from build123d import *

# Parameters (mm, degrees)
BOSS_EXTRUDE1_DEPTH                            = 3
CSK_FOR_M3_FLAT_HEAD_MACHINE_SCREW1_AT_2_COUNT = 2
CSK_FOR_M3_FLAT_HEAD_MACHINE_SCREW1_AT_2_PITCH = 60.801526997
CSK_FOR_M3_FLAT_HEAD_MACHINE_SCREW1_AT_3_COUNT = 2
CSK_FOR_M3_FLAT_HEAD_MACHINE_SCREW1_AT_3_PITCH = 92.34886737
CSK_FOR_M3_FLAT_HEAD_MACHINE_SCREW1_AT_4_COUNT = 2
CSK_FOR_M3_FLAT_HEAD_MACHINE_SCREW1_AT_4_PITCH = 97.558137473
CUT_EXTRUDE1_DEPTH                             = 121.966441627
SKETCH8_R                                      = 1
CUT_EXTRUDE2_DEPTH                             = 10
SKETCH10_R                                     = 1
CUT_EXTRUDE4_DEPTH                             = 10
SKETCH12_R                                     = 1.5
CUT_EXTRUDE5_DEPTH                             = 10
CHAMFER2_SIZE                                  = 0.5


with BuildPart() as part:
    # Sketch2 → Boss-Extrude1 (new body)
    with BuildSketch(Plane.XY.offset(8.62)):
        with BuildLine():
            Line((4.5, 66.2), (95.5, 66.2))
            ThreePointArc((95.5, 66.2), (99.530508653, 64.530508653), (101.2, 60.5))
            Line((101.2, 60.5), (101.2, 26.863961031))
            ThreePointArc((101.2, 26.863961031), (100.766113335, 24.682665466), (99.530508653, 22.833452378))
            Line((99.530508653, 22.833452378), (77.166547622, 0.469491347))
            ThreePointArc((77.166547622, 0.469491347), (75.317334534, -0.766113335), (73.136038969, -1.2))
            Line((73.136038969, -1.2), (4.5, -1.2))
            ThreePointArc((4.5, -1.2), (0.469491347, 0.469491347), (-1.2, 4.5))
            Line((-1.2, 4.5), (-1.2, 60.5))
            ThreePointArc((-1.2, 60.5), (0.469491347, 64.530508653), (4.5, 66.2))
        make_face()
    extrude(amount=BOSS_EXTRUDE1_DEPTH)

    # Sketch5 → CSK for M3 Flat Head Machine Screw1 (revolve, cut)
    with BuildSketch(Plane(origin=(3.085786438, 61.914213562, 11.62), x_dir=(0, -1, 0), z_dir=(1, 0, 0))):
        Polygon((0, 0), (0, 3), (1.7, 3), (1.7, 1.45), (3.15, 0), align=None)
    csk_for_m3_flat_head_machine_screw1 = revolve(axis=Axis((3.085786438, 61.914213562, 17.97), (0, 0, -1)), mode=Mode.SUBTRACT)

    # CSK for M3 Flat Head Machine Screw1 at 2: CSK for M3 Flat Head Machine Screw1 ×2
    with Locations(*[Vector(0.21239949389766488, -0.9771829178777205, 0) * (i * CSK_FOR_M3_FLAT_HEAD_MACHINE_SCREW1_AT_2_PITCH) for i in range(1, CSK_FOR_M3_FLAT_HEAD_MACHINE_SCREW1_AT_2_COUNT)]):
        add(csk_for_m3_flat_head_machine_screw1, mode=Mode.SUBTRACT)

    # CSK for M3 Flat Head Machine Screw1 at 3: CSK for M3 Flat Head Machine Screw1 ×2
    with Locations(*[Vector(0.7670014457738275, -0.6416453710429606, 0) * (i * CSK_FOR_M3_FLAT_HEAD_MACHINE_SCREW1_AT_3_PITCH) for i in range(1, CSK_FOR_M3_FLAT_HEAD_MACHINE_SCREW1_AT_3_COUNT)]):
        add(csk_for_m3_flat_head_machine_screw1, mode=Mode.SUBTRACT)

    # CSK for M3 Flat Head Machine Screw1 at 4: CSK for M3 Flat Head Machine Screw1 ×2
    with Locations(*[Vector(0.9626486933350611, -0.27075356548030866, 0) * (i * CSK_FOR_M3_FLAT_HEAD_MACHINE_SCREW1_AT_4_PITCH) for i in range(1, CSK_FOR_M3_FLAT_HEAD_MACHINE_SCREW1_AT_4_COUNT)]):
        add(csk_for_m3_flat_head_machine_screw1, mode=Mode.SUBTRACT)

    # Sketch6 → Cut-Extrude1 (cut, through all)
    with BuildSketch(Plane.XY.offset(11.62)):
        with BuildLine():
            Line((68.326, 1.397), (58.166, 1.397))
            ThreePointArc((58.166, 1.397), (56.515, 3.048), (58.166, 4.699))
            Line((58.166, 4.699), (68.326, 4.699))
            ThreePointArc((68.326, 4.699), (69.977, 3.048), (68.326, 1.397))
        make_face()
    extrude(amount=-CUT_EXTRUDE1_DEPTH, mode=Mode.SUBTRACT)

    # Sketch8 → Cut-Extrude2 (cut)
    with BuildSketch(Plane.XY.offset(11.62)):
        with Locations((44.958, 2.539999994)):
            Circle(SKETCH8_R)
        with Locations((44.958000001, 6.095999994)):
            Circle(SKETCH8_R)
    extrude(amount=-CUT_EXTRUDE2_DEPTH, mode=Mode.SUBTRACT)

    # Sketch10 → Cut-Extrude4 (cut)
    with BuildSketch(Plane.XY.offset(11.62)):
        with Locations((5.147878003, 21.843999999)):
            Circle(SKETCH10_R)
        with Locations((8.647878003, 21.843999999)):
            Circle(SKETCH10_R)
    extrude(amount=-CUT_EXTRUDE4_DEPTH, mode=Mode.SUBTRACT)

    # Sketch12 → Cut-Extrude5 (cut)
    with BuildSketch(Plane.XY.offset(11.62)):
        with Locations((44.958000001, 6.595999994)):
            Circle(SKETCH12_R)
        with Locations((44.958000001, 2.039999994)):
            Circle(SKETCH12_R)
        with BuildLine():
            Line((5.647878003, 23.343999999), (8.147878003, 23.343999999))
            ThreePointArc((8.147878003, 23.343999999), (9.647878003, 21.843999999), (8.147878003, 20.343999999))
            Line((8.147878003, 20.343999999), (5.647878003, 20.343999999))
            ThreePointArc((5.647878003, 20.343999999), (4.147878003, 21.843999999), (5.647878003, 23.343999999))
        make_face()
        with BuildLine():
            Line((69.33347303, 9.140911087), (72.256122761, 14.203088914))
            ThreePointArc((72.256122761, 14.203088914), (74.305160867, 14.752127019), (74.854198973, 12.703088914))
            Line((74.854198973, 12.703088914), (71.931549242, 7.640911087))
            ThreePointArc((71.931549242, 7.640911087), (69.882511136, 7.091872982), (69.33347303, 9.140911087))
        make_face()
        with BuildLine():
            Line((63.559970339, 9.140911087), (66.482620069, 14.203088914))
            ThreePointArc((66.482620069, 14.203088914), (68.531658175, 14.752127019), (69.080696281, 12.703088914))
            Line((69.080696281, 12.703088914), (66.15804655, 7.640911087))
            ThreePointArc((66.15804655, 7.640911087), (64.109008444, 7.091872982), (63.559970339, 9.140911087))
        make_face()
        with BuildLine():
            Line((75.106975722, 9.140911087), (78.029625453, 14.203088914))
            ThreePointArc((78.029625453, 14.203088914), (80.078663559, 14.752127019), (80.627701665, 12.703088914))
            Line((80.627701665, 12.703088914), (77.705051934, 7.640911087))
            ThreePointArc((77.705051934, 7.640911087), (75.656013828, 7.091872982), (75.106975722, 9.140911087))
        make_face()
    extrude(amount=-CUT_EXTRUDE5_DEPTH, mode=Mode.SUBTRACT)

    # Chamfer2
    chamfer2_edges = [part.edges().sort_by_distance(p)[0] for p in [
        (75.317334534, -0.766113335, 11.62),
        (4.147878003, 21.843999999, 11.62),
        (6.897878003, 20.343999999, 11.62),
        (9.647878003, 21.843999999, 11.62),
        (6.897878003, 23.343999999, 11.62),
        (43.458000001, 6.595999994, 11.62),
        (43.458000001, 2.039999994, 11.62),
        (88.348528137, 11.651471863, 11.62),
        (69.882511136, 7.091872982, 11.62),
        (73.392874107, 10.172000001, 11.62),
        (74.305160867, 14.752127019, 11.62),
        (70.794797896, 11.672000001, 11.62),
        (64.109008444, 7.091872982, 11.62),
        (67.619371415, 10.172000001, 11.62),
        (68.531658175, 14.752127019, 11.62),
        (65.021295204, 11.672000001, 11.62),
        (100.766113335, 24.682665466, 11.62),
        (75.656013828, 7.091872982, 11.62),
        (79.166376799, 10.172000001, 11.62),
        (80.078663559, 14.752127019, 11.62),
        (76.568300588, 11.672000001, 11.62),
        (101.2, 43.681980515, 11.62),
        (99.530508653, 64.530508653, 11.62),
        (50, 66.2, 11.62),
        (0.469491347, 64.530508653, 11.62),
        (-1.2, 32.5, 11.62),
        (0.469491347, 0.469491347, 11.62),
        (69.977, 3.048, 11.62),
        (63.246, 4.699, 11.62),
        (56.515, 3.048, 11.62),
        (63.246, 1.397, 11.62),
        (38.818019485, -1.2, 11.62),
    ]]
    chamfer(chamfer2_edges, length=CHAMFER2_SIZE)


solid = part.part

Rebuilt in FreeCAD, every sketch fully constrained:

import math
import FreeCAD as App
import Part
import Sketcher
Q = App.Units.Quantity


def edges_at(feature, points):
    """Names of the edges that pass closest to the given points."""
    edges = feature.Shape.Edges
    near = lambda p: min(range(len(edges)), key=lambda i: edges[i].distToShape(Part.Vertex(*p))[0])
    return sorted({f"Edge{near(p) + 1}" for p in points})


def add_polygon(sketch, points):
    """Adds a closed chain of lines whose ends are joined by coincident constraints."""
    first, n = sketch.GeometryCount, len(points)
    for a, b in zip(points, points[1:] + points[:1]):
        sketch.addGeometry(Part.LineSegment(App.Vector(*a, 0), App.Vector(*b, 0)), False)
    for i in range(n):
        sketch.addConstraint(Sketcher.Constraint("Coincident", first + i, 2, first + (i + 1) % n, 1))

doc = App.newDocument("Part")
body = doc.addObject("PartDesign::Body", "Body")

sketch1 = body.newObject("Sketcher::SketchObject", "Sketch")
sketch1.AttachmentSupport = (doc.getObject("XY_Plane"), [""])
sketch1.MapMode = "FlatFace"
sketch1.AttachmentOffset = App.Placement(App.Vector(0, 0, 8.62), App.Rotation())
sketch1.addGeometry(Part.LineSegment(App.Vector(95.5, 66.2, 0), App.Vector(4.5, 66.2, 0)), False)
sketch1.addGeometry(Part.ArcOfCircle(Part.Circle(App.Vector(4.5, 60.5, 0), App.Vector(0, 0, 1), 5.7), math.radians(90), math.radians(180)), False)
sketch1.addGeometry(Part.LineSegment(App.Vector(-1.2, 60.5, 0), App.Vector(-1.2, 4.5, 0)), False)
sketch1.addGeometry(Part.ArcOfCircle(Part.Circle(App.Vector(4.5, 4.5, 0), App.Vector(0, 0, 1), 5.7), math.radians(180), math.radians(270)), False)
sketch1.addGeometry(Part.LineSegment(App.Vector(4.5, -1.2, 0), App.Vector(73.1, -1.2, 0)), False)
sketch1.addGeometry(Part.ArcOfCircle(Part.Circle(App.Vector(73.1, 4.5, 0), App.Vector(0, 0, 1), 5.7), math.radians(-90), math.radians(-45)), False)
sketch1.addGeometry(Part.LineSegment(App.Vector(77.2, 0.5, 0), App.Vector(99.5, 22.8, 0)), False)
sketch1.addGeometry(Part.ArcOfCircle(Part.Circle(App.Vector(95.5, 26.9, 0), App.Vector(0, 0, 1), 5.7), math.radians(-45), math.radians(0)), False)
sketch1.addGeometry(Part.LineSegment(App.Vector(101.2, 26.9, 0), App.Vector(101.2, 60.5, 0)), False)
sketch1.addGeometry(Part.ArcOfCircle(Part.Circle(App.Vector(95.5, 60.5, 0), App.Vector(0, 0, 1), 5.7), math.radians(0), math.radians(90)), False)
sketch1.addConstraint(Sketcher.Constraint("Tangent", 0, 2, 1, 1))
sketch1.addConstraint(Sketcher.Constraint("Tangent", 1, 2, 2, 1))
sketch1.addConstraint(Sketcher.Constraint("Tangent", 2, 2, 3, 1))
sketch1.addConstraint(Sketcher.Constraint("Tangent", 3, 2, 4, 1))
sketch1.addConstraint(Sketcher.Constraint("Tangent", 4, 2, 5, 1))
sketch1.addConstraint(Sketcher.Constraint("Tangent", 5, 2, 6, 1))
sketch1.addConstraint(Sketcher.Constraint("Tangent", 6, 2, 7, 1))
sketch1.addConstraint(Sketcher.Constraint("Tangent", 7, 2, 8, 1))
sketch1.addConstraint(Sketcher.Constraint("Tangent", 8, 2, 9, 1))
sketch1.addConstraint(Sketcher.Constraint("Tangent", 9, 2, 0, 1))
sketch1.addConstraint(Sketcher.Constraint("Horizontal", 0))
sketch1.addConstraint(Sketcher.Constraint("Vertical", 2))
sketch1.addConstraint(Sketcher.Constraint("Horizontal", 4))
sketch1.addConstraint(Sketcher.Constraint("Vertical", 8))
sketch1.addConstraint(Sketcher.Constraint("Equal", 1, 3))
sketch1.addConstraint(Sketcher.Constraint("Equal", 3, 5))
sketch1.addConstraint(Sketcher.Constraint("Equal", 5, 7))
sketch1.addConstraint(Sketcher.Constraint("Equal", 7, 9))
sketch1.addConstraint(Sketcher.Constraint("Radius", 1, 5.7))
sketch1.addConstraint(Sketcher.Constraint("DistanceX", 0, 2, 0, 1, 91.0))
sketch1.addConstraint(Sketcher.Constraint("DistanceY", 2, 2, 2, 1, 56.0))
sketch1.addConstraint(Sketcher.Constraint("Angle", 6, Q("45 deg")))
sketch1.addConstraint(Sketcher.Constraint("DistanceX", -1, 1, 1, 3, 4.5))
sketch1.addConstraint(Sketcher.Constraint("DistanceY", -1, 1, 1, 3, 60.5))
sketch1.addConstraint(Sketcher.Constraint("DistanceX", 4, 1, 4, 2, 68.636039))
pad1 = body.newObject("PartDesign::Pad", "Pad")
pad1.Profile = sketch1
pad1.Length = 3

sketch2 = body.newObject("Sketcher::SketchObject", "Sketch001")
sketch2.AttachmentSupport = (doc.getObject("YZ_Plane"), [""])
sketch2.MapMode = "FlatFace"
sketch2.AttachmentOffset = App.Placement(App.Vector(0, 0, 3.085786), App.Rotation())
add_polygon(sketch2, [(61.9, 8.6), (61.9, 11.6), (58.8, 11.6), (60.2, 10.2), (60.2, 8.6)])
sketch2.addGeometry(Part.LineSegment(App.Vector(61.9, 11.6, 0), App.Vector(61.9, 8.6, 0)), True)
sketch2.addConstraint(Sketcher.Constraint("Vertical", 0))
sketch2.addConstraint(Sketcher.Constraint("Horizontal", 1))
sketch2.addConstraint(Sketcher.Constraint("Vertical", 3))
sketch2.addConstraint(Sketcher.Constraint("Horizontal", 4))
sketch2.addConstraint(Sketcher.Constraint("Vertical", 5))
sketch2.addConstraint(Sketcher.Constraint("Coincident", 5, 1, 0, 2))
sketch2.addConstraint(Sketcher.Constraint("Horizontal", 3, 2, 5, 2))
sketch2.addConstraint(Sketcher.Constraint("DistanceY", 0, 1, 0, 2, 3.0))
sketch2.addConstraint(Sketcher.Constraint("Angle", 2, Q("-45 deg")))
sketch2.addConstraint(Sketcher.Constraint("DistanceX", 4, 1, 4, 2, 1.7))
sketch2.addConstraint(Sketcher.Constraint("DistanceX", 1, 2, 1, 1, 3.15))
sketch2.addConstraint(Sketcher.Constraint("DistanceY", -1, 1, 0, 2, 11.62))
sketch2.addConstraint(Sketcher.Constraint("DistanceX", -1, 1, 0, 2, 61.914214))
groove = body.newObject("PartDesign::Groove", "Groove")
groove.Profile = sketch2
groove.ReferenceAxis = (sketch2, ["Axis0"])
groove.Angle = 360
doc.recompute()

datumline = body.newObject("PartDesign::Line", "DatumLine")
datumline.Placement = App.Placement(App.Vector(0, 0, 0), App.Rotation(App.Vector(0, 0, 1), App.Vector(0.212399494, -0.977182918, 0)))
linearpattern = body.newObject("PartDesign::LinearPattern", "LinearPattern")
linearpattern.Originals = [groove]
linearpattern.Direction = (datumline, [""])
linearpattern.Mode = "offset"
linearpattern.Offset = 60.801527
linearpattern.Occurrences = 2
body.Tip = linearpattern
doc.recompute()

datumline2 = body.newObject("PartDesign::Line", "DatumLine001")
datumline2.Placement = App.Placement(App.Vector(0, 0, 0), App.Rotation(App.Vector(0, 0, 1), App.Vector(0.767001446, -0.641645371, 0)))
linearpattern2 = body.newObject("PartDesign::LinearPattern", "LinearPattern001")
linearpattern2.Originals = [groove]
linearpattern2.Direction = (datumline2, [""])
linearpattern2.Mode = "offset"
linearpattern2.Offset = 92.348867
linearpattern2.Occurrences = 2
body.Tip = linearpattern2
doc.recompute()

datumline3 = body.newObject("PartDesign::Line", "DatumLine002")
datumline3.Placement = App.Placement(App.Vector(0, 0, 0), App.Rotation(App.Vector(0, 0, 1), App.Vector(0.962648693, -0.270753565, 0)))
linearpattern3 = body.newObject("PartDesign::LinearPattern", "LinearPattern002")
linearpattern3.Originals = [groove]
linearpattern3.Direction = (datumline3, [""])
linearpattern3.Mode = "offset"
linearpattern3.Offset = 97.558137
linearpattern3.Occurrences = 2
body.Tip = linearpattern3

sketch3 = body.newObject("Sketcher::SketchObject", "Sketch002")
sketch3.AttachmentSupport = (doc.getObject("XY_Plane"), [""])
sketch3.MapMode = "FlatFace"
sketch3.AttachmentOffset = App.Placement(App.Vector(0, 0, 11.62), App.Rotation())
sketch3.addGeometry(Part.LineSegment(App.Vector(58.2, 1.4, 0), App.Vector(68.3, 1.4, 0)), False)
sketch3.addGeometry(Part.ArcOfCircle(Part.Circle(App.Vector(68.3, 3, 0), App.Vector(0, 0, 1), 1.7), math.radians(-90), math.radians(90)), False)
sketch3.addGeometry(Part.LineSegment(App.Vector(68.3, 4.7, 0), App.Vector(58.2, 4.7, 0)), False)
sketch3.addGeometry(Part.ArcOfCircle(Part.Circle(App.Vector(58.2, 3, 0), App.Vector(0, 0, 1), 1.7), math.radians(90), math.radians(270)), False)
sketch3.addConstraint(Sketcher.Constraint("Tangent", 0, 2, 1, 1))
sketch3.addConstraint(Sketcher.Constraint("Tangent", 1, 2, 2, 1))
sketch3.addConstraint(Sketcher.Constraint("Tangent", 2, 2, 3, 1))
sketch3.addConstraint(Sketcher.Constraint("Tangent", 3, 2, 0, 1))
sketch3.addConstraint(Sketcher.Constraint("Horizontal", 0))
sketch3.addConstraint(Sketcher.Constraint("Horizontal", 2))
sketch3.addConstraint(Sketcher.Constraint("Radius", 1, 1.651))
sketch3.addConstraint(Sketcher.Constraint("DistanceX", 0, 1, 0, 2, 10.16))
sketch3.addConstraint(Sketcher.Constraint("DistanceX", -1, 1, 1, 3, 68.326))
sketch3.addConstraint(Sketcher.Constraint("DistanceY", -1, 1, 1, 3, 3.048))
pocket1 = body.newObject("PartDesign::Pocket", "Pocket")
pocket1.Profile = sketch3
pocket1.Type = "ThroughAll"

sketch4 = body.newObject("Sketcher::SketchObject", "Sketch003")
sketch4.AttachmentSupport = (doc.getObject("XY_Plane"), [""])
sketch4.MapMode = "FlatFace"
sketch4.AttachmentOffset = App.Placement(App.Vector(0, 0, 11.62), App.Rotation())
sketch4.addGeometry(Part.Circle(App.Vector(45, 2.5, 0), App.Vector(0, 0, 1), 1), False)
sketch4.addGeometry(Part.Circle(App.Vector(45, 6.1, 0), App.Vector(0, 0, 1), 1), False)
sketch4.addConstraint(Sketcher.Constraint("Equal", 0, 1))
sketch4.addConstraint(Sketcher.Constraint("Vertical", 0, 3, 1, 3))
sketch4.addConstraint(Sketcher.Constraint("Diameter", 0, 2.0))
sketch4.addConstraint(Sketcher.Constraint("DistanceY", -1, 1, 0, 3, 2.54))
sketch4.addConstraint(Sketcher.Constraint("DistanceX", -1, 1, 0, 3, 44.958))
sketch4.addConstraint(Sketcher.Constraint("DistanceY", -1, 1, 1, 3, 6.096))
pocket2 = body.newObject("PartDesign::Pocket", "Pocket001")
pocket2.Profile = sketch4
pocket2.Length = 10

sketch5 = body.newObject("Sketcher::SketchObject", "Sketch004")
sketch5.AttachmentSupport = (doc.getObject("XY_Plane"), [""])
sketch5.MapMode = "FlatFace"
sketch5.AttachmentOffset = App.Placement(App.Vector(0, 0, 11.62), App.Rotation())
sketch5.addGeometry(Part.Circle(App.Vector(5.1, 21.8, 0), App.Vector(0, 0, 1), 1), False)
sketch5.addGeometry(Part.Circle(App.Vector(8.6, 21.8, 0), App.Vector(0, 0, 1), 1), False)
sketch5.addConstraint(Sketcher.Constraint("Equal", 0, 1))
sketch5.addConstraint(Sketcher.Constraint("Horizontal", 0, 3, 1, 3))
sketch5.addConstraint(Sketcher.Constraint("Diameter", 0, 2.0))
sketch5.addConstraint(Sketcher.Constraint("DistanceX", 0, 3, 1, 3, 3.5))
sketch5.addConstraint(Sketcher.Constraint("DistanceY", -1, 1, 0, 3, 21.844))
sketch5.addConstraint(Sketcher.Constraint("DistanceX", -1, 1, 0, 3, 5.147878))
pocket3 = body.newObject("PartDesign::Pocket", "Pocket002")
pocket3.Profile = sketch5
pocket3.Length = 10

sketch6 = body.newObject("Sketcher::SketchObject", "Sketch005")
sketch6.AttachmentSupport = (doc.getObject("XY_Plane"), [""])
sketch6.MapMode = "FlatFace"
sketch6.AttachmentOffset = App.Placement(App.Vector(0, 0, 11.62), App.Rotation())
sketch6.addGeometry(Part.Circle(App.Vector(45, 6.6, 0), App.Vector(0, 0, 1), 1.5), False)
sketch6.addGeometry(Part.Circle(App.Vector(45, 2, 0), App.Vector(0, 0, 1), 1.5), False)
sketch6.addGeometry(Part.LineSegment(App.Vector(8.1, 23.3, 0), App.Vector(5.6, 23.3, 0)), False)
sketch6.addGeometry(Part.ArcOfCircle(Part.Circle(App.Vector(5.6, 21.8, 0), App.Vector(0, 0, 1), 1.5), math.radians(90), math.radians(270)), False)
sketch6.addGeometry(Part.LineSegment(App.Vector(5.6, 20.3, 0), App.Vector(8.1, 20.3, 0)), False)
sketch6.addGeometry(Part.ArcOfCircle(Part.Circle(App.Vector(8.1, 21.8, 0), App.Vector(0, 0, 1), 1.5), math.radians(-90), math.radians(90)), False)
sketch6.addGeometry(Part.LineSegment(App.Vector(72.3, 14.2, 0), App.Vector(69.3, 9.1, 0)), False)
sketch6.addGeometry(Part.ArcOfCircle(Part.Circle(App.Vector(70.6, 8.4, 0), App.Vector(0, 0, 1), 1.5), math.radians(150), math.radians(330)), False)
sketch6.addGeometry(Part.LineSegment(App.Vector(71.9, 7.6, 0), App.Vector(74.9, 12.7, 0)), False)
sketch6.addGeometry(Part.ArcOfCircle(Part.Circle(App.Vector(73.6, 13.5, 0), App.Vector(0, 0, 1), 1.5), math.radians(-30), math.radians(150)), False)
sketch6.addGeometry(Part.LineSegment(App.Vector(66.5, 14.2, 0), App.Vector(63.6, 9.1, 0)), False)
sketch6.addGeometry(Part.ArcOfCircle(Part.Circle(App.Vector(64.9, 8.4, 0), App.Vector(0, 0, 1), 1.5), math.radians(150), math.radians(330)), False)
sketch6.addGeometry(Part.LineSegment(App.Vector(66.2, 7.6, 0), App.Vector(69.1, 12.7, 0)), False)
sketch6.addGeometry(Part.ArcOfCircle(Part.Circle(App.Vector(67.8, 13.5, 0), App.Vector(0, 0, 1), 1.5), math.radians(-30), math.radians(150)), False)
sketch6.addGeometry(Part.LineSegment(App.Vector(78, 14.2, 0), App.Vector(75.1, 9.1, 0)), False)
sketch6.addGeometry(Part.ArcOfCircle(Part.Circle(App.Vector(76.4, 8.4, 0), App.Vector(0, 0, 1), 1.5), math.radians(150), math.radians(330)), False)
sketch6.addGeometry(Part.LineSegment(App.Vector(77.7, 7.6, 0), App.Vector(80.6, 12.7, 0)), False)
sketch6.addGeometry(Part.ArcOfCircle(Part.Circle(App.Vector(79.3, 13.5, 0), App.Vector(0, 0, 1), 1.5), math.radians(-30), math.radians(150)), False)
sketch6.addConstraint(Sketcher.Constraint("Tangent", 2, 2, 3, 1))
sketch6.addConstraint(Sketcher.Constraint("Tangent", 3, 2, 4, 1))
sketch6.addConstraint(Sketcher.Constraint("Tangent", 4, 2, 5, 1))
sketch6.addConstraint(Sketcher.Constraint("Tangent", 5, 2, 2, 1))
sketch6.addConstraint(Sketcher.Constraint("Tangent", 6, 2, 7, 1))
sketch6.addConstraint(Sketcher.Constraint("Tangent", 7, 2, 8, 1))
sketch6.addConstraint(Sketcher.Constraint("Tangent", 8, 2, 9, 1))
sketch6.addConstraint(Sketcher.Constraint("Tangent", 9, 2, 6, 1))
sketch6.addConstraint(Sketcher.Constraint("Tangent", 10, 2, 11, 1))
sketch6.addConstraint(Sketcher.Constraint("Tangent", 11, 2, 12, 1))
sketch6.addConstraint(Sketcher.Constraint("Tangent", 12, 2, 13, 1))
sketch6.addConstraint(Sketcher.Constraint("Tangent", 13, 2, 10, 1))
sketch6.addConstraint(Sketcher.Constraint("Tangent", 14, 2, 15, 1))
sketch6.addConstraint(Sketcher.Constraint("Tangent", 15, 2, 16, 1))
sketch6.addConstraint(Sketcher.Constraint("Tangent", 16, 2, 17, 1))
sketch6.addConstraint(Sketcher.Constraint("Tangent", 17, 2, 14, 1))
sketch6.addConstraint(Sketcher.Constraint("Horizontal", 2))
sketch6.addConstraint(Sketcher.Constraint("Horizontal", 4))
sketch6.addConstraint(Sketcher.Constraint("Equal", 0, 1))
sketch6.addConstraint(Sketcher.Constraint("Equal", 1, 3))
sketch6.addConstraint(Sketcher.Constraint("Equal", 5, 7))
sketch6.addConstraint(Sketcher.Constraint("Equal", 7, 9))
sketch6.addConstraint(Sketcher.Constraint("Equal", 9, 11))
sketch6.addConstraint(Sketcher.Constraint("Equal", 11, 13))
sketch6.addConstraint(Sketcher.Constraint("Equal", 13, 15))
sketch6.addConstraint(Sketcher.Constraint("Equal", 15, 17))
sketch6.addConstraint(Sketcher.Constraint("Parallel", 8, 10))
sketch6.addConstraint(Sketcher.Constraint("Parallel", 12, 14))
sketch6.addConstraint(Sketcher.Constraint("Horizontal", 7, 3, 11, 3))
sketch6.addConstraint(Sketcher.Constraint("Horizontal", 9, 3, 13, 3))
sketch6.addConstraint(Sketcher.Constraint("Horizontal", 11, 3, 15, 3))
sketch6.addConstraint(Sketcher.Constraint("Horizontal", 13, 3, 17, 3))
sketch6.addConstraint(Sketcher.Constraint("Vertical", 0, 3, 1, 3))
sketch6.addConstraint(Sketcher.Constraint("Diameter", 0, 3.0))
sketch6.addConstraint(Sketcher.Constraint("Angle", 6, Q("-120 deg")))
sketch6.addConstraint(Sketcher.Constraint("DistanceX", 2, 2, 2, 1, 2.5))
sketch6.addConstraint(Sketcher.Constraint("DistanceY", -1, 1, 1, 3, 2.04))
sketch6.addConstraint(Sketcher.Constraint("DistanceX", -1, 1, 0, 3, 44.958))
sketch6.addConstraint(Sketcher.Constraint("DistanceY", -1, 1, 0, 3, 6.596))
sketch6.addConstraint(Sketcher.Constraint("DistanceY", -1, 1, 3, 3, 21.844))
sketch6.addConstraint(Sketcher.Constraint("Distance", 6, 5.845299))
sketch6.addConstraint(Sketcher.Constraint("DistanceX", -1, 1, 8, 2, 74.854199))
sketch6.addConstraint(Sketcher.Constraint("DistanceX", -1, 1, 16, 2, 80.627702))
sketch6.addConstraint(Sketcher.Constraint("DistanceX", -1, 1, 3, 3, 5.647878))
sketch6.addConstraint(Sketcher.Constraint("DistanceY", -1, 1, 7, 3, 8.390911))
sketch6.addConstraint(Sketcher.Constraint("DistanceX", -1, 1, 11, 3, 64.859008))
pocket4 = body.newObject("PartDesign::Pocket", "Pocket003")
pocket4.Profile = sketch6
pocket4.Length = 10
doc.recompute()

chamfer = body.newObject("PartDesign::Chamfer", "Chamfer")
chamfer.Base = (pocket4, edges_at(pocket4, [
    (75.317, -0.766, 11.62),
    (4.148, 21.844, 11.62),
    (6.898, 20.344, 11.62),
    (9.648, 21.844, 11.62),
    (6.898, 23.344, 11.62),
    (43.458, 6.596, 11.62),
    (43.458, 2.04, 11.62),
    (88.349, 11.651, 11.62),
    (69.883, 7.092, 11.62),
    (73.393, 10.172, 11.62),
    (74.305, 14.752, 11.62),
    (70.795, 11.672, 11.62),
    (64.109, 7.092, 11.62),
    (67.619, 10.172, 11.62),
    (68.532, 14.752, 11.62),
    (65.021, 11.672, 11.62),
    (100.766, 24.683, 11.62),
    (75.656, 7.092, 11.62),
    (79.166, 10.172, 11.62),
    (80.079, 14.752, 11.62),
    (76.568, 11.672, 11.62),
    (101.2, 43.682, 11.62),
    (99.531, 64.531, 11.62),
    (50, 66.2, 11.62),
    (0.469, 64.531, 11.62),
    (-1.2, 32.5, 11.62),
    (0.469, 0.469, 11.62),
    (69.977, 3.048, 11.62),
    (63.246, 4.699, 11.62),
    (56.515, 3.048, 11.62),
    (63.246, 1.397, 11.62),
    (38.818, -1.2, 11.62),
]))
chamfer.Size = 0.5

doc.recompute()
